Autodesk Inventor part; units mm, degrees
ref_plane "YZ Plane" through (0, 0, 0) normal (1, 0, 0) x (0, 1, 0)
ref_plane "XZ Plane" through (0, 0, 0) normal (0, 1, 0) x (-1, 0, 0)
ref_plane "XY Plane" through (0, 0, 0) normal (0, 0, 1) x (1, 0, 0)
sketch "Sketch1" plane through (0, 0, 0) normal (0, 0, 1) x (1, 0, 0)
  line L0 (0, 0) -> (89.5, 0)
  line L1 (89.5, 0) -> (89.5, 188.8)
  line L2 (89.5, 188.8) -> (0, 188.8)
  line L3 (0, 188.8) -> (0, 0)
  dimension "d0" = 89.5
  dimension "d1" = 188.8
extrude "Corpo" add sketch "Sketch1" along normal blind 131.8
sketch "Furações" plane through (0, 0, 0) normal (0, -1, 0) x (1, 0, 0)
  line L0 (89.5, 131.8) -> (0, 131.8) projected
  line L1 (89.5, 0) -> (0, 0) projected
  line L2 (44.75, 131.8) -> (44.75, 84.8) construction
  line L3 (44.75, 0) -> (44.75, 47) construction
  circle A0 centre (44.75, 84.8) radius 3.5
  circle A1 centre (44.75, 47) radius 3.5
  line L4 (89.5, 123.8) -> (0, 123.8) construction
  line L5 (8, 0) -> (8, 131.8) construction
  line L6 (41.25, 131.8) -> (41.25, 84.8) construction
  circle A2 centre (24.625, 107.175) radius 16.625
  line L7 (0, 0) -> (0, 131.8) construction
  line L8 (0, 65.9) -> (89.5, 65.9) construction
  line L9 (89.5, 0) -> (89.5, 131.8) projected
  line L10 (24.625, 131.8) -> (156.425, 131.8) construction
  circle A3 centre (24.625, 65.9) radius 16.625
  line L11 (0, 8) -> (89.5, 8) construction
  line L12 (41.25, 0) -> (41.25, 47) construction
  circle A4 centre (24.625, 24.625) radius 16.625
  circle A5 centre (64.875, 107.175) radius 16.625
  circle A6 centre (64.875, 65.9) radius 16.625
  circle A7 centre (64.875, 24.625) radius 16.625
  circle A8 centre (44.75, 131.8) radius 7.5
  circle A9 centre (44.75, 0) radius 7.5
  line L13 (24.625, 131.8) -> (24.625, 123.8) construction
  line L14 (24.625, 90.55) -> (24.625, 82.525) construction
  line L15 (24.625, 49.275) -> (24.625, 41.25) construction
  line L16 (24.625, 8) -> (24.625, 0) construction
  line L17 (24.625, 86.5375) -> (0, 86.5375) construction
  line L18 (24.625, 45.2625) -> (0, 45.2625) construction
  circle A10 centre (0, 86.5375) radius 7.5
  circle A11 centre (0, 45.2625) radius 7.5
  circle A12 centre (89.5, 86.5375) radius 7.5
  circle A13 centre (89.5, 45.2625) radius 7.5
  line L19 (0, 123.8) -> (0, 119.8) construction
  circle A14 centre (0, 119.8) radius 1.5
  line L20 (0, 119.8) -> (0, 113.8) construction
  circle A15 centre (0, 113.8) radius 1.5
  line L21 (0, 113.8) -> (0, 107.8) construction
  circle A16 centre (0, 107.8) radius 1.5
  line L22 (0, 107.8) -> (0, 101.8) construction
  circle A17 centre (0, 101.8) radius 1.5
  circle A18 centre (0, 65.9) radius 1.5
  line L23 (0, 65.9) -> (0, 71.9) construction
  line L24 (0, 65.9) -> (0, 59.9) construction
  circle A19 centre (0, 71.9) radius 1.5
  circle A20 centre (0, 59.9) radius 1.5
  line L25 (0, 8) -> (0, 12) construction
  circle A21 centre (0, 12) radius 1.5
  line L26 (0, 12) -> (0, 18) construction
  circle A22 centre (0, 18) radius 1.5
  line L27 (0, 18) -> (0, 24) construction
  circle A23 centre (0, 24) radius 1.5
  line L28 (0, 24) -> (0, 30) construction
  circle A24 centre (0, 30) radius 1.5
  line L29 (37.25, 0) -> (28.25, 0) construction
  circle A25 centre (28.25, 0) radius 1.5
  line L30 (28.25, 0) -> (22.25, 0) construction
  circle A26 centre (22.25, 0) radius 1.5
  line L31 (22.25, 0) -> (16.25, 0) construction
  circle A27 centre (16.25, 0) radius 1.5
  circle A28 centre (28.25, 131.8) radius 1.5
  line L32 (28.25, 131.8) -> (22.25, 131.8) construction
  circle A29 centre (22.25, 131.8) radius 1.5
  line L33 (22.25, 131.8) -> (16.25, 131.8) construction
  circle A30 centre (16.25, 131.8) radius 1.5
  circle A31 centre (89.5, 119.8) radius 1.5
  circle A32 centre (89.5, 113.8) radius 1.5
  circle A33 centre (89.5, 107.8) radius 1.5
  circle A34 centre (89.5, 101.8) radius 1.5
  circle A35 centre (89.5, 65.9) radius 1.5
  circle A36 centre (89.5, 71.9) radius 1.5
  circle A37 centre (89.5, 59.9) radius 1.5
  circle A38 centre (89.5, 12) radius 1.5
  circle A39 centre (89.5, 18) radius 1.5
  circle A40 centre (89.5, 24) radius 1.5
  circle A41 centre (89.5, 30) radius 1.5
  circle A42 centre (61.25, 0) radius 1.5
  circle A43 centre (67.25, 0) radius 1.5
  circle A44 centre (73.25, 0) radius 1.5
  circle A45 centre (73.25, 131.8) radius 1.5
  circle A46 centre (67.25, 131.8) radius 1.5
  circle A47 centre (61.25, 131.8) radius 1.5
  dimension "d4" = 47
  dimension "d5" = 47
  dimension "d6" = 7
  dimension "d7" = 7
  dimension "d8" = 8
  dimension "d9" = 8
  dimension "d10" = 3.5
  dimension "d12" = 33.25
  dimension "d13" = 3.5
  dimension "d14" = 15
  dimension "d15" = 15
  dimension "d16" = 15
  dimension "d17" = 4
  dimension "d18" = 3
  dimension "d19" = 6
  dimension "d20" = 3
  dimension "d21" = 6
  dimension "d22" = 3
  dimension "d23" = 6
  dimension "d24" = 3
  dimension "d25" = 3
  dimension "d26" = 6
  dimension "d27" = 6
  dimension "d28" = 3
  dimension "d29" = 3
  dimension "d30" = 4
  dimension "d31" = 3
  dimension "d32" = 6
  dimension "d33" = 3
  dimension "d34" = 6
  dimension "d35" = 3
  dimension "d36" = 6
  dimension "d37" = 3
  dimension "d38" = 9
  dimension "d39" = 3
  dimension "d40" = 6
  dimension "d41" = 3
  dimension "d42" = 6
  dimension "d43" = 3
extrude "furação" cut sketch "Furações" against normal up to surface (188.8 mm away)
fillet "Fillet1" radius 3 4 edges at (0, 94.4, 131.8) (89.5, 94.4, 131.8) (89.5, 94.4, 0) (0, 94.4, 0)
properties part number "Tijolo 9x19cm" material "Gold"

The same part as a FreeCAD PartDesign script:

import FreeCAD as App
import Part
import Sketcher

V = App.Vector


def edges_at(feature, points):
    """Names of the edges that pass closest to the given points."""
    edges = feature.Shape.Edges
    near = lambda p: min(range(len(edges)), key=lambda i: edges[i].distToShape(Part.Vertex(*p))[0])
    return sorted({f"Edge{near(p) + 1}" for p in points})


def add_polygon(sketch, points):
    """Adds a closed chain of lines whose ends are joined by coincident constraints."""
    first, n = sketch.GeometryCount, len(points)
    for a, b in zip(points, points[1:] + points[:1]):
        sketch.addGeometry(Part.LineSegment(App.Vector(*a, 0), App.Vector(*b, 0)), False)
    for i in range(n):
        sketch.addConstraint(Sketcher.Constraint("Coincident", first + i, 2, first + (i + 1) % n, 1))

doc = App.newDocument("Part")
body = doc.addObject("PartDesign::Body", "Body")

sketch1 = body.newObject("Sketcher::SketchObject", "Sketch")
sketch1.AttachmentSupport = (doc.getObject("XY_Plane"), [""])
sketch1.MapMode = "FlatFace"
add_polygon(sketch1, [(0, 189), (0, 0), (90, 0), (90, 189)])
sketch1.addConstraint(Sketcher.Constraint("Vertical", 0))
sketch1.addConstraint(Sketcher.Constraint("Horizontal", 1))
sketch1.addConstraint(Sketcher.Constraint("Vertical", 2))
sketch1.addConstraint(Sketcher.Constraint("Horizontal", 3))
sketch1.addConstraint(Sketcher.Constraint("Coincident", 0, 2, -1, 1))
sketch1.addConstraint(Sketcher.Constraint("DistanceX", 1, 1, 1, 2, 89.5))
sketch1.addConstraint(Sketcher.Constraint("DistanceY", 0, 2, 0, 1, 188.8))
pad1 = body.newObject("PartDesign::Pad", "Pad")
pad1.Profile = sketch1
pad1.Length = 131.8

sketch2 = body.newObject("Sketcher::SketchObject", "Sketch001")
sketch2.AttachmentSupport = (doc.getObject("XZ_Plane"), [""])
sketch2.MapMode = "FlatFace"
sketch2.addGeometry(Part.Circle(V(16.2, 131.8, 0), V(0, 0, 1), 1.5), False)
sketch2.addGeometry(Part.Circle(V(22.2, 131.8, 0), V(0, 0, 1), 1.5), False)
sketch2.addGeometry(Part.Circle(V(28.2, 131.8, 0), V(0, 0, 1), 1.5), False)
sketch2.addGeometry(Part.Circle(V(44.8, 131.8, 0), V(0, 0, 1), 7.5), False)
sketch2.addGeometry(Part.Circle(V(61.2, 131.8, 0), V(0, 0, 1), 1.5), False)
sketch2.addGeometry(Part.Circle(V(67.2, 131.8, 0), V(0, 0, 1), 1.5), False)
sketch2.addGeometry(Part.Circle(V(73.2, 131.8, 0), V(0, 0, 1), 1.5), False)
sketch2.addGeometry(Part.Circle(V(16.2, 0, 0), V(0, 0, 1), 1.5), False)
sketch2.addGeometry(Part.Circle(V(22.2, 0, 0), V(0, 0, 1), 1.5), False)
sketch2.addGeometry(Part.Circle(V(28.2, 0, 0), V(0, 0, 1), 1.5), False)
sketch2.addGeometry(Part.Circle(V(44.8, 0, 0), V(0, 0, 1), 7.5), False)
sketch2.addGeometry(Part.Circle(V(61.2, 0, 0), V(0, 0, 1), 1.5), False)
sketch2.addGeometry(Part.Circle(V(67.2, 0, 0), V(0, 0, 1), 1.5), False)
sketch2.addGeometry(Part.Circle(V(73.2, 0, 0), V(0, 0, 1), 1.5), False)
sketch2.addGeometry(Part.Circle(V(89.5, 12, 0), V(0, 0, 1), 1.5), False)
sketch2.addGeometry(Part.Circle(V(89.5, 18, 0), V(0, 0, 1), 1.5), False)
sketch2.addGeometry(Part.Circle(V(89.5, 24, 0), V(0, 0, 1), 1.5), False)
sketch2.addGeometry(Part.Circle(V(89.5, 30, 0), V(0, 0, 1), 1.5), False)
sketch2.addGeometry(Part.Circle(V(89.5, 45.3, 0), V(0, 0, 1), 7.5), False)
sketch2.addGeometry(Part.Circle(V(89.5, 59.9, 0), V(0, 0, 1), 1.5), False)
sketch2.addGeometry(Part.Circle(V(89.5, 65.9, 0), V(0, 0, 1), 1.5), False)
sketch2.addGeometry(Part.Circle(V(89.5, 71.9, 0), V(0, 0, 1), 1.5), False)
sketch2.addGeometry(Part.Circle(V(89.5, 86.5, 0), V(0, 0, 1), 7.5), False)
sketch2.addGeometry(Part.Circle(V(89.5, 101.8, 0), V(0, 0, 1), 1.5), False)
sketch2.addGeometry(Part.Circle(V(89.5, 107.8, 0), V(0, 0, 1), 1.5), False)
sketch2.addGeometry(Part.Circle(V(89.5, 113.8, 0), V(0, 0, 1), 1.5), False)
sketch2.addGeometry(Part.Circle(V(89.5, 119.8, 0), V(0, 0, 1), 1.5), False)
sketch2.addGeometry(Part.Circle(V(44.8, 84.8, 0), V(0, 0, 1), 3.5), False)
sketch2.addGeometry(Part.Circle(V(44.8, 47, 0), V(0, 0, 1), 3.5), False)
sketch2.addGeometry(Part.Circle(V(24.6, 107.2, 0), V(0, 0, 1), 16.6), False)
sketch2.addGeometry(Part.Circle(V(24.6, 65.9, 0), V(0, 0, 1), 16.6), False)
sketch2.addGeometry(Part.Circle(V(24.6, 24.6, 0), V(0, 0, 1), 16.6), False)
sketch2.addGeometry(Part.Circle(V(64.9, 107.2, 0), V(0, 0, 1), 16.6), False)
sketch2.addGeometry(Part.Circle(V(64.9, 65.9, 0), V(0, 0, 1), 16.6), False)
sketch2.addGeometry(Part.Circle(V(64.9, 24.6, 0), V(0, 0, 1), 16.6), False)
sketch2.addGeometry(Part.Circle(V(0, 86.5, 0), V(0, 0, 1), 7.5), False)
sketch2.addGeometry(Part.Circle(V(0, 45.3, 0), V(0, 0, 1), 7.5), False)
sketch2.addGeometry(Part.Circle(V(0, 119.8, 0), V(0, 0, 1), 1.5), False)
sketch2.addGeometry(Part.Circle(V(0, 113.8, 0), V(0, 0, 1), 1.5), False)
sketch2.addGeometry(Part.Circle(V(0, 107.8, 0), V(0, 0, 1), 1.5), False)
sketch2.addGeometry(Part.Circle(V(0, 101.8, 0), V(0, 0, 1), 1.5), False)
sketch2.addGeometry(Part.Circle(V(0, 65.9, 0), V(0, 0, 1), 1.5), False)
sketch2.addGeometry(Part.Circle(V(0, 71.9, 0), V(0, 0, 1), 1.5), False)
sketch2.addGeometry(Part.Circle(V(0, 59.9, 0), V(0, 0, 1), 1.5), False)
sketch2.addGeometry(Part.Circle(V(0, 12, 0), V(0, 0, 1), 1.5), False)
sketch2.addGeometry(Part.Circle(V(0, 18, 0), V(0, 0, 1), 1.5), False)
sketch2.addGeometry(Part.Circle(V(0, 24, 0), V(0, 0, 1), 1.5), False)
sketch2.addGeometry(Part.Circle(V(0, 30, 0), V(0, 0, 1), 1.5), False)
sketch2.addConstraint(Sketcher.Constraint("Equal", 0, 1))
sketch2.addConstraint(Sketcher.Constraint("Equal", 1, 2))
sketch2.addConstraint(Sketcher.Constraint("Equal", 2, 4))
sketch2.addConstraint(Sketcher.Constraint("Equal", 4, 5))
sketch2.addConstraint(Sketcher.Constraint("Equal", 5, 6))
sketch2.addConstraint(Sketcher.Constraint("Equal", 6, 7))
sketch2.addConstraint(Sketcher.Constraint("Equal", 7, 8))
sketch2.addConstraint(Sketcher.Constraint("Equal", 8, 9))
sketch2.addConstraint(Sketcher.Constraint("Equal", 3, 10))
sketch2.addConstraint(Sketcher.Constraint("Equal", 9, 11))
sketch2.addConstraint(Sketcher.Constraint("Equal", 11, 12))
sketch2.addConstraint(Sketcher.Constraint("Equal", 12, 13))
sketch2.addConstraint(Sketcher.Constraint("Equal", 13, 14))
sketch2.addConstraint(Sketcher.Constraint("Equal", 14, 15))
sketch2.addConstraint(Sketcher.Constraint("Equal", 15, 16))
sketch2.addConstraint(Sketcher.Constraint("Equal", 16, 17))
sketch2.addConstraint(Sketcher.Constraint("Equal", 10, 18))
sketch2.addConstraint(Sketcher.Constraint("Equal", 17, 19))
sketch2.addConstraint(Sketcher.Constraint("Equal", 19, 20))
sketch2.addConstraint(Sketcher.Constraint("Equal", 20, 21))
sketch2.addConstraint(Sketcher.Constraint("Equal", 18, 22))
sketch2.addConstraint(Sketcher.Constraint("Equal", 21, 23))
sketch2.addConstraint(Sketcher.Constraint("Equal", 23, 24))
sketch2.addConstraint(Sketcher.Constraint("Equal", 24, 25))
sketch2.addConstraint(Sketcher.Constraint("Equal", 25, 26))
sketch2.addConstraint(Sketcher.Constraint("Equal", 27, 28))
sketch2.addConstraint(Sketcher.Constraint("Equal", 29, 30))
sketch2.addConstraint(Sketcher.Constraint("Equal", 30, 31))
sketch2.addConstraint(Sketcher.Constraint("Equal", 31, 32))
sketch2.addConstraint(Sketcher.Constraint("Equal", 32, 33))
sketch2.addConstraint(Sketcher.Constraint("Equal", 33, 34))
sketch2.addConstraint(Sketcher.Constraint("Equal", 22, 35))
sketch2.addConstraint(Sketcher.Constraint("Equal", 35, 36))
sketch2.addConstraint(Sketcher.Constraint("Equal", 26, 37))
sketch2.addConstraint(Sketcher.Constraint("Equal", 37, 38))
sketch2.addConstraint(Sketcher.Constraint("Equal", 38, 39))
sketch2.addConstraint(Sketcher.Constraint("Equal", 39, 40))
sketch2.addConstraint(Sketcher.Constraint("Equal", 40, 41))
sketch2.addConstraint(Sketcher.Constraint("Equal", 41, 42))
sketch2.addConstraint(Sketcher.Constraint("Equal", 42, 43))
sketch2.addConstraint(Sketcher.Constraint("Equal", 43, 44))
sketch2.addConstraint(Sketcher.Constraint("Equal", 44, 45))
sketch2.addConstraint(Sketcher.Constraint("Equal", 45, 46))
sketch2.addConstraint(Sketcher.Constraint("Equal", 46, 47))
sketch2.addConstraint(Sketcher.Constraint("PointOnObject", 7, 3, -1))
sketch2.addConstraint(Sketcher.Constraint("PointOnObject", 8, 3, -1))
sketch2.addConstraint(Sketcher.Constraint("PointOnObject", 9, 3, -1))
sketch2.addConstraint(Sketcher.Constraint("PointOnObject", 10, 3, -1))
sketch2.addConstraint(Sketcher.Constraint("PointOnObject", 11, 3, -1))
sketch2.addConstraint(Sketcher.Constraint("PointOnObject", 12, 3, -1))
sketch2.addConstraint(Sketcher.Constraint("PointOnObject", 13, 3, -1))
sketch2.addConstraint(Sketcher.Constraint("PointOnObject", 35, 3, -2))
sketch2.addConstraint(Sketcher.Constraint("PointOnObject", 36, 3, -2))
sketch2.addConstraint(Sketcher.Constraint("PointOnObject", 37, 3, -2))
sketch2.addConstraint(Sketcher.Constraint("PointOnObject", 38, 3, -2))
sketch2.addConstraint(Sketcher.Constraint("PointOnObject", 39, 3, -2))
sketch2.addConstraint(Sketcher.Constraint("PointOnObject", 40, 3, -2))
sketch2.addConstraint(Sketcher.Constraint("PointOnObject", 41, 3, -2))
sketch2.addConstraint(Sketcher.Constraint("PointOnObject", 42, 3, -2))
sketch2.addConstraint(Sketcher.Constraint("PointOnObject", 43, 3, -2))
sketch2.addConstraint(Sketcher.Constraint("PointOnObject", 44, 3, -2))
sketch2.addConstraint(Sketcher.Constraint("PointOnObject", 45, 3, -2))
sketch2.addConstraint(Sketcher.Constraint("PointOnObject", 46, 3, -2))
sketch2.addConstraint(Sketcher.Constraint("PointOnObject", 47, 3, -2))
sketch2.addConstraint(Sketcher.Constraint("Horizontal", 0, 3, 1, 3))
sketch2.addConstraint(Sketcher.Constraint("Horizontal", 1, 3, 2, 3))
sketch2.addConstraint(Sketcher.Constraint("Horizontal", 2, 3, 3, 3))
sketch2.addConstraint(Sketcher.Constraint("Horizontal", 3, 3, 4, 3))
sketch2.addConstraint(Sketcher.Constraint("Horizontal", 4, 3, 5, 3))
sketch2.addConstraint(Sketcher.Constraint("Horizontal", 5, 3, 6, 3))
sketch2.addConstraint(Sketcher.Constraint("Horizontal", 20, 3, 30, 3))
sketch2.addConstraint(Sketcher.Constraint("Horizontal", 29, 3, 32, 3))
sketch2.addConstraint(Sketcher.Constraint("Horizontal", 30, 3, 33, 3))
sketch2.addConstraint(Sketcher.Constraint("Horizontal", 31, 3, 34, 3))
sketch2.addConstraint(Sketcher.Constraint("Horizontal", 22, 3, 35, 3))
sketch2.addConstraint(Sketcher.Constraint("Horizontal", 18, 3, 36, 3))
sketch2.addConstraint(Sketcher.Constraint("Horizontal", 26, 3, 37, 3))
sketch2.addConstraint(Sketcher.Constraint("Horizontal", 25, 3, 38, 3))
sketch2.addConstraint(Sketcher.Constraint("Horizontal", 24, 3, 39, 3))
sketch2.addConstraint(Sketcher.Constraint("Horizontal", 23, 3, 40, 3))
sketch2.addConstraint(Sketcher.Constraint("Horizontal", 33, 3, 41, 3))
sketch2.addConstraint(Sketcher.Constraint("Horizontal", 21, 3, 42, 3))
sketch2.addConstraint(Sketcher.Constraint("Horizontal", 19, 3, 43, 3))
sketch2.addConstraint(Sketcher.Constraint("Horizontal", 14, 3, 44, 3))
sketch2.addConstraint(Sketcher.Constraint("Horizontal", 15, 3, 45, 3))
sketch2.addConstraint(Sketcher.Constraint("Horizontal", 16, 3, 46, 3))
sketch2.addConstraint(Sketcher.Constraint("Horizontal", 17, 3, 47, 3))
sketch2.addConstraint(Sketcher.Constraint("Vertical", 0, 3, 7, 3))
sketch2.addConstraint(Sketcher.Constraint("Vertical", 1, 3, 8, 3))
sketch2.addConstraint(Sketcher.Constraint("Vertical", 2, 3, 9, 3))
sketch2.addConstraint(Sketcher.Constraint("Vertical", 3, 3, 10, 3))
sketch2.addConstraint(Sketcher.Constraint("Vertical", 4, 3, 11, 3))
sketch2.addConstraint(Sketcher.Constraint("Vertical", 5, 3, 12, 3))
sketch2.addConstraint(Sketcher.Constraint("Vertical", 6, 3, 13, 3))
sketch2.addConstraint(Sketcher.Constraint("Vertical", 14, 3, 15, 3))
sketch2.addConstraint(Sketcher.Constraint("Vertical", 15, 3, 16, 3))
sketch2.addConstraint(Sketcher.Constraint("Vertical", 16, 3, 17, 3))
sketch2.addConstraint(Sketcher.Constraint("Vertical", 17, 3, 18, 3))
sketch2.addConstraint(Sketcher.Constraint("Vertical", 18, 3, 19, 3))
sketch2.addConstraint(Sketcher.Constraint("Vertical", 19, 3, 20, 3))
sketch2.addConstraint(Sketcher.Constraint("Vertical", 20, 3, 21, 3))
sketch2.addConstraint(Sketcher.Constraint("Vertical", 21, 3, 22, 3))
sketch2.addConstraint(Sketcher.Constraint("Vertical", 22, 3, 23, 3))
sketch2.addConstraint(Sketcher.Constraint("Vertical", 23, 3, 24, 3))
sketch2.addConstraint(Sketcher.Constraint("Vertical", 24, 3, 25, 3))
sketch2.addConstraint(Sketcher.Constraint("Vertical", 25, 3, 26, 3))
sketch2.addConstraint(Sketcher.Constraint("Vertical", 10, 3, 27, 3))
sketch2.addConstraint(Sketcher.Constraint("Vertical", 27, 3, 28, 3))
sketch2.addConstraint(Sketcher.Constraint("Vertical", 29, 3, 30, 3))
sketch2.addConstraint(Sketcher.Constraint("Vertical", 30, 3, 31, 3))
sketch2.addConstraint(Sketcher.Constraint("Vertical", 32, 3, 33, 3))
sketch2.addConstraint(Sketcher.Constraint("Vertical", 33, 3, 34, 3))
sketch2.addConstraint(Sketcher.Constraint("Diameter", 0, 3.0))
sketch2.addConstraint(Sketcher.Constraint("Diameter", 3, 15.0))
sketch2.addConstraint(Sketcher.Constraint("Diameter", 27, 7.0))
sketch2.addConstraint(Sketcher.Constraint("Diameter", 29, 33.25))
sketch2.addConstraint(Sketcher.Constraint("DistanceY", -1, 1, 28, 3, 47.0))
sketch2.addConstraint(Sketcher.Constraint("DistanceX", 0, 3, 1, 3, 6.0))
sketch2.addConstraint(Sketcher.Constraint("DistanceX", 1, 3, 2, 3, 6.0))
sketch2.addConstraint(Sketcher.Constraint("DistanceX", 4, 3, 5, 3, 6.0))
sketch2.addConstraint(Sketcher.Constraint("DistanceX", 5, 3, 6, 3, 6.0))
sketch2.addConstraint(Sketcher.Constraint("DistanceY", 14, 3, 15, 3, 6.0))
sketch2.addConstraint(Sketcher.Constraint("DistanceY", 15, 3, 16, 3, 6.0))
sketch2.addConstraint(Sketcher.Constraint("DistanceY", 16, 3, 17, 3, 6.0))
sketch2.addConstraint(Sketcher.Constraint("DistanceY", 19, 3, 20, 3, 6.0))
sketch2.addConstraint(Sketcher.Constraint("DistanceY", 20, 3, 21, 3, 6.0))
sketch2.addConstraint(Sketcher.Constraint("DistanceY", 23, 3, 24, 3, 6.0))
sketch2.addConstraint(Sketcher.Constraint("DistanceY", 24, 3, 25, 3, 6.0))
sketch2.addConstraint(Sketcher.Constraint("DistanceY", 25, 3, 26, 3, 6.0))
sketch2.addConstraint(Sketcher.Constraint("DistanceY", 27, 3, 3, 3, 47.0))
sketch2.addConstraint(Sketcher.Constraint("DistanceY", -1, 1, 14, 3, 12.0))
sketch2.addConstraint(Sketcher.Constraint("DistanceX", 2, 3, 4, 3, 33.0))
sketch2.addConstraint(Sketcher.Constraint("DistanceY", 23, 3, 6, 3, 30.0))
sketch2.addConstraint(Sketcher.Constraint("DistanceY", -1, 1, 0, 3, 131.8))
sketch2.addConstraint(Sketcher.Constraint("DistanceX", -1, 1, 14, 3, 89.5))
sketch2.addConstraint(Sketcher.Constraint("DistanceY", -1, 1, 19, 3, 59.9))
sketch2.addConstraint(Sketcher.Constraint("DistanceX", 2, 3, 3, 3, 16.5))
sketch2.addConstraint(Sketcher.Constraint("DistanceX", -1, 1, 0, 3, 16.25))
sketch2.addConstraint(Sketcher.Constraint("DistanceX", -1, 1, 29, 3, 24.625))
sketch2.addConstraint(Sketcher.Constraint("DistanceY", -1, 1, 29, 3, 107.175))
sketch2.addConstraint(Sketcher.Constraint("DistanceY", -1, 1, 31, 3, 24.625))
sketch2.addConstraint(Sketcher.Constraint("DistanceX", -1, 1, 32, 3, 64.875))
sketch2.addConstraint(Sketcher.Constraint("DistanceY", 18, 3, 22, 3, 41.275))
sketch2.addConstraint(Sketcher.Constraint("DistanceY", -1, 1, 18, 3, 45.2625))
pocket1 = body.newObject("PartDesign::Pocket", "Pocket")
pocket1.Profile = sketch2
pocket1.Length = 188.8
doc.recompute()

fillet = body.newObject("PartDesign::Fillet", "Fillet")
fillet.Base = (pocket1, edges_at(pocket1, [
    (0, 94.4, 131.8),
    (89.5, 94.4, 131.8),
    (89.5, 94.4, 0),
    (0, 94.4, 0),
]))
fillet.Radius = 3

doc.recompute()
